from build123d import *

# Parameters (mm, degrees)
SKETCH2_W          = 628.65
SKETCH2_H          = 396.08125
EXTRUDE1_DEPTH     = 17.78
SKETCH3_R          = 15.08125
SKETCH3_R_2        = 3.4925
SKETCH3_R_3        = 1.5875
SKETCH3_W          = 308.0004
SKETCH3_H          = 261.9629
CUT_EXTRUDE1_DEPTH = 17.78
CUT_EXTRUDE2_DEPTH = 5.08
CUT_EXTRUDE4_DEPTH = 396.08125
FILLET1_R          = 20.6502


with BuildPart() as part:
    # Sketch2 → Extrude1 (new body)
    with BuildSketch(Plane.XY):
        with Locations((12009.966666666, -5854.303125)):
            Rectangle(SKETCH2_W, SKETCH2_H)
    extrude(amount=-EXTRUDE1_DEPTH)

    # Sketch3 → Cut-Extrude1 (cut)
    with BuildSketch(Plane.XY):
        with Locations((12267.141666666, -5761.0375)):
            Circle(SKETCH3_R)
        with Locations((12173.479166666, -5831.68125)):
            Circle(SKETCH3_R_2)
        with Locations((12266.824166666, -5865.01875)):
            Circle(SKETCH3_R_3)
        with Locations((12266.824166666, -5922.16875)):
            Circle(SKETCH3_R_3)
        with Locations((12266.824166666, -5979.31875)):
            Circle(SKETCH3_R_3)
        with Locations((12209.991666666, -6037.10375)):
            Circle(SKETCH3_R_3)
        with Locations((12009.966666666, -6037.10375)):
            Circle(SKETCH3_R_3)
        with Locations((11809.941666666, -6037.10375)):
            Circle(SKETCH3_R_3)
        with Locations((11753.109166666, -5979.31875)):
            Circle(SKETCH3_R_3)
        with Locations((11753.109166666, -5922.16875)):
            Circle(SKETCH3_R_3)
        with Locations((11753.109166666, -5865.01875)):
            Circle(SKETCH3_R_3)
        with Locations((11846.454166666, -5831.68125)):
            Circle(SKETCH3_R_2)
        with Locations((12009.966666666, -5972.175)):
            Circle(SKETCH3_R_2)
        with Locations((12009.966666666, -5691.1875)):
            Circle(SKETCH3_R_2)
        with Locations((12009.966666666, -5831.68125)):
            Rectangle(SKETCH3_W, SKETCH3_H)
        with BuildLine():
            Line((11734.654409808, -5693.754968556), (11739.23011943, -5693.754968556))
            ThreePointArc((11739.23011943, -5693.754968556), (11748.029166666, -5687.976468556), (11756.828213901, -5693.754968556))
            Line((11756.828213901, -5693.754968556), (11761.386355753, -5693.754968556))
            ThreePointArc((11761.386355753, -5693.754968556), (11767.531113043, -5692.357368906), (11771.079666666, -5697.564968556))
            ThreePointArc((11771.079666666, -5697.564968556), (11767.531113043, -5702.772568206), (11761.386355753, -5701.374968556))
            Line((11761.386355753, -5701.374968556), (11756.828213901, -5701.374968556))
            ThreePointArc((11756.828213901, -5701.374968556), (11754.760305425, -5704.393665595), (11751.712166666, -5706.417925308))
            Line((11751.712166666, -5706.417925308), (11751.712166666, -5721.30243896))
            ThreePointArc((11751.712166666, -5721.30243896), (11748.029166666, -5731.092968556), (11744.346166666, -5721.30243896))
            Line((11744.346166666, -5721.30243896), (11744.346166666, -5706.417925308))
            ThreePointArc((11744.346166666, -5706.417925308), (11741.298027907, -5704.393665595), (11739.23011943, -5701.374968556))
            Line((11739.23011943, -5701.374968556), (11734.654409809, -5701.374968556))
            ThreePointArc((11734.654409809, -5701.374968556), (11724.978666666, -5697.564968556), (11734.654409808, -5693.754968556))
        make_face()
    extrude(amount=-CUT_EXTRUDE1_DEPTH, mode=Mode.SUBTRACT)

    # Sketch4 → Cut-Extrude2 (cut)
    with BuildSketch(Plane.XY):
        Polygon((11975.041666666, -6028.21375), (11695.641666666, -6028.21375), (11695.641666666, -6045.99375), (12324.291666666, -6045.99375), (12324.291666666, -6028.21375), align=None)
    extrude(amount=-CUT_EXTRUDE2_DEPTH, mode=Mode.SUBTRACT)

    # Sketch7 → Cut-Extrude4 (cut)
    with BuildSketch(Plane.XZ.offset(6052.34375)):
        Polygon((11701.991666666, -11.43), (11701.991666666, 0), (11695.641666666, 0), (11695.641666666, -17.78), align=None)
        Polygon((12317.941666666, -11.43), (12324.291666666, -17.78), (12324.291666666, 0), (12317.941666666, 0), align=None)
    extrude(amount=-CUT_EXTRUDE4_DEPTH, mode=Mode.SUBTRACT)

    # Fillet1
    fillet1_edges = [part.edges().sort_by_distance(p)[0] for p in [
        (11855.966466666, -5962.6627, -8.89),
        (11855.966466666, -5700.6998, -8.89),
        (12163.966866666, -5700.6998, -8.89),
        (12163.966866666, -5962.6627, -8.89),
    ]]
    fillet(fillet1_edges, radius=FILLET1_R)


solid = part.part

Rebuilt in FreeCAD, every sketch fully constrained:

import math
import FreeCAD as App
import Part
import Sketcher

V = App.Vector
Q = App.Units.Quantity


def edges_at(feature, points):
    """Names of the edges that pass closest to the given points."""
    edges = feature.Shape.Edges
    near = lambda p: min(range(len(edges)), key=lambda i: edges[i].distToShape(Part.Vertex(*p))[0])
    return sorted({f"Edge{near(p) + 1}" for p in points})

doc = App.newDocument("Part")
body = doc.addObject("PartDesign::Body", "Body")

# Sketch on XY plane
sketch1 = body.newObject("Sketcher::SketchObject", "Sketch")
sketch1.AttachmentSupport = (doc.getObject("XY_Plane"), [""])
sketch1.MapMode = "FlatFace"
sketch1.addGeometry(Part.LineSegment(V(11696, -5656, 0), V(11696, -6052, 0)), False)
sketch1.addGeometry(Part.LineSegment(V(11696, -6052, 0), V(12324, -6052, 0)), False)
sketch1.addGeometry(Part.LineSegment(V(12324, -6052, 0), V(12324, -5656, 0)), False)
sketch1.addGeometry(Part.LineSegment(V(12324, -5656, 0), V(11696, -5656, 0)), False)
sketch1.addConstraint(Sketcher.Constraint("Coincident", 0, 2, 1, 1))
sketch1.addConstraint(Sketcher.Constraint("Coincident", 1, 2, 2, 1))
sketch1.addConstraint(Sketcher.Constraint("Coincident", 2, 2, 3, 1))
sketch1.addConstraint(Sketcher.Constraint("Coincident", 3, 2, 0, 1))
sketch1.addConstraint(Sketcher.Constraint("Vertical", 0))
sketch1.addConstraint(Sketcher.Constraint("Horizontal", 1))
sketch1.addConstraint(Sketcher.Constraint("Vertical", 2))
sketch1.addConstraint(Sketcher.Constraint("Horizontal", 3))
sketch1.addConstraint(Sketcher.Constraint("DistanceX", 1, 1, 1, 2, Q("24.75 in")))
sketch1.addConstraint(Sketcher.Constraint("DistanceY", 0, 2, 0, 1, Q("15.59375 in")))
sketch1.addConstraint(Sketcher.Constraint("DistanceY", 0, 2, -1, 1, Q("238.28125 in")))
sketch1.addConstraint(Sketcher.Constraint("DistanceX", -1, 1, 0, 2, 11695.641667))
pad1 = body.newObject("PartDesign::Pad", "Pad")
pad1.Profile = sketch1
pad1.Length = Q("0.7 in")
pad1.Reversed = True

# Sketch on XY plane
sketch2 = body.newObject("Sketcher::SketchObject", "Sketch001")
sketch2.AttachmentSupport = (doc.getObject("XY_Plane"), [""])
sketch2.MapMode = "FlatFace"
sketch2.addGeometry(Part.Circle(V(12267.1, -5761, 0), V(0, 0, 1), 15.1), False)
sketch2.addGeometry(Part.Circle(V(12173.5, -5831.7, 0), V(0, 0, 1), 3.5), False)
sketch2.addGeometry(Part.Circle(V(12266.8, -5865, 0), V(0, 0, 1), 1.6), False)
sketch2.addGeometry(Part.Circle(V(12266.8, -5922.2, 0), V(0, 0, 1), 1.6), False)
sketch2.addGeometry(Part.Circle(V(12266.8, -5979.3, 0), V(0, 0, 1), 1.6), False)
sketch2.addGeometry(Part.Circle(V(12210, -6037.1, 0), V(0, 0, 1), 1.6), False)
sketch2.addGeometry(Part.Circle(V(12010, -6037.1, 0), V(0, 0, 1), 1.6), False)
sketch2.addGeometry(Part.Circle(V(11809.9, -6037.1, 0), V(0, 0, 1), 1.6), False)
sketch2.addGeometry(Part.Circle(V(11753.1, -5979.3, 0), V(0, 0, 1), 1.6), False)
sketch2.addGeometry(Part.Circle(V(11753.1, -5922.2, 0), V(0, 0, 1), 1.6), False)
sketch2.addGeometry(Part.Circle(V(11753.1, -5865, 0), V(0, 0, 1), 1.6), False)
sketch2.addGeometry(Part.Circle(V(11846.5, -5831.7, 0), V(0, 0, 1), 3.5), False)
sketch2.addGeometry(Part.Circle(V(12010, -5972.2, 0), V(0, 0, 1), 3.5), False)
sketch2.addGeometry(Part.Circle(V(12010, -5691.2, 0), V(0, 0, 1), 3.5), False)
sketch2.addGeometry(Part.LineSegment(V(11856, -5700.7, 0), V(11856, -5962.7, 0)), False)
sketch2.addGeometry(Part.LineSegment(V(11856, -5962.7, 0), V(12164, -5962.7, 0)), False)
sketch2.addGeometry(Part.LineSegment(V(12164, -5962.7, 0), V(12164, -5700.7, 0)), False)
sketch2.addGeometry(Part.LineSegment(V(12164, -5700.7, 0), V(11856, -5700.7, 0)), False)
sketch2.addGeometry(Part.LineSegment(V(11739.2, -5693.8, 0), V(11734.7, -5693.8, 0)), False)
sketch2.addGeometry(Part.ArcOfCircle(Part.Circle(V(11730.6, -5697.6, 0), V(0, 0, 1), 5.6), math.radians(43), math.radians(317)), False)
sketch2.addGeometry(Part.LineSegment(V(11734.7, -5701.4, 0), V(11739.2, -5701.4, 0)), False)
sketch2.addGeometry(Part.ArcOfCircle(Part.Circle(V(11748, -5697.6, 0), V(0, 0, 1), 9.6), math.radians(-157), math.radians(-113)), False)
sketch2.addGeometry(Part.LineSegment(V(11744.3, -5706.4, 0), V(11744.3, -5721.3, 0)), False)
sketch2.addGeometry(Part.ArcOfCircle(Part.Circle(V(11748, -5725.5, 0), V(0, 0, 1), 5.6), math.radians(131), math.radians(409)), False)
sketch2.addGeometry(Part.LineSegment(V(11751.7, -5721.3, 0), V(11751.7, -5706.4, 0)), False)
sketch2.addGeometry(Part.ArcOfCircle(Part.Circle(V(11748, -5697.6, 0), V(0, 0, 1), 9.6), math.radians(-67), math.radians(-23)), False)
sketch2.addGeometry(Part.LineSegment(V(11756.8, -5701.4, 0), V(11761.4, -5701.4, 0)), False)
sketch2.addGeometry(Part.ArcOfCircle(Part.Circle(V(11765.5, -5697.6, 0), V(0, 0, 1), 5.6), math.radians(-137), math.radians(0)), False)
sketch2.addGeometry(Part.ArcOfCircle(Part.Circle(V(11765.5, -5697.6, 0), V(0, 0, 1), 5.6), math.radians(0), math.radians(137)), False)
sketch2.addGeometry(Part.LineSegment(V(11761.4, -5693.8, 0), V(11756.8, -5693.8, 0)), False)
sketch2.addGeometry(Part.ArcOfCircle(Part.Circle(V(11748, -5697.6, 0), V(0, 0, 1), 9.6), math.radians(23), math.radians(157)), False)
sketch2.addConstraint(Sketcher.Constraint("Coincident", 14, 2, 15, 1))
sketch2.addConstraint(Sketcher.Constraint("Coincident", 15, 2, 16, 1))
sketch2.addConstraint(Sketcher.Constraint("Coincident", 16, 2, 17, 1))
sketch2.addConstraint(Sketcher.Constraint("Coincident", 17, 2, 14, 1))
sketch2.addConstraint(Sketcher.Constraint("Coincident", 18, 2, 19, 1))
sketch2.addConstraint(Sketcher.Constraint("Coincident", 19, 2, 20, 1))
sketch2.addConstraint(Sketcher.Constraint("Coincident", 20, 2, 21, 1))
sketch2.addConstraint(Sketcher.Constraint("Coincident", 21, 2, 22, 1))
sketch2.addConstraint(Sketcher.Constraint("Coincident", 22, 2, 23, 1))
sketch2.addConstraint(Sketcher.Constraint("Coincident", 23, 2, 24, 1))
sketch2.addConstraint(Sketcher.Constraint("Coincident", 24, 2, 25, 1))
sketch2.addConstraint(Sketcher.Constraint("Coincident", 25, 2, 26, 1))
sketch2.addConstraint(Sketcher.Constraint("Coincident", 26, 2, 27, 1))
sketch2.addConstraint(Sketcher.Constraint("Tangent", 27, 2, 28, 1))
sketch2.addConstraint(Sketcher.Constraint("Coincident", 28, 2, 29, 1))
sketch2.addConstraint(Sketcher.Constraint("Coincident", 29, 2, 30, 1))
sketch2.addConstraint(Sketcher.Constraint("Coincident", 30, 2, 18, 1))
sketch2.addConstraint(Sketcher.Constraint("Vertical", 14))
sketch2.addConstraint(Sketcher.Constraint("Horizontal", 15))
sketch2.addConstraint(Sketcher.Constraint("Vertical", 16))
sketch2.addConstraint(Sketcher.Constraint("Horizontal", 17))
sketch2.addConstraint(Sketcher.Constraint("Horizontal", 18))
sketch2.addConstraint(Sketcher.Constraint("Horizontal", 20))
sketch2.addConstraint(Sketcher.Constraint("Vertical", 22))
sketch2.addConstraint(Sketcher.Constraint("Vertical", 24))
sketch2.addConstraint(Sketcher.Constraint("Horizontal", 26))
sketch2.addConstraint(Sketcher.Constraint("Horizontal", 29))
sketch2.addConstraint(Sketcher.Constraint("Coincident", 25, 3, 21, 3))
sketch2.addConstraint(Sketcher.Constraint("Coincident", 30, 3, 21, 3))
sketch2.addConstraint(Sketcher.Constraint("Equal", 2, 3))
sketch2.addConstraint(Sketcher.Constraint("Equal", 3, 4))
sketch2.addConstraint(Sketcher.Constraint("Equal", 4, 5))
sketch2.addConstraint(Sketcher.Constraint("Equal", 5, 6))
sketch2.addConstraint(Sketcher.Constraint("Equal", 6, 7))
sketch2.addConstraint(Sketcher.Constraint("Equal", 7, 8))
sketch2.addConstraint(Sketcher.Constraint("Equal", 8, 9))
sketch2.addConstraint(Sketcher.Constraint("Equal", 9, 10))
sketch2.addConstraint(Sketcher.Constraint("Equal", 1, 11))
sketch2.addConstraint(Sketcher.Constraint("Equal", 11, 12))
sketch2.addConstraint(Sketcher.Constraint("Equal", 12, 13))
sketch2.addConstraint(Sketcher.Constraint("Equal", 19, 23))
sketch2.addConstraint(Sketcher.Constraint("Equal", 21, 25))
sketch2.addConstraint(Sketcher.Constraint("Equal", 27, 28))
sketch2.addConstraint(Sketcher.Constraint("Equal", 25, 30))
sketch2.addConstraint(Sketcher.Constraint("Horizontal", 5, 3, 6, 3))
sketch2.addConstraint(Sketcher.Constraint("Horizontal", 6, 3, 7, 3))
sketch2.addConstraint(Sketcher.Constraint("Horizontal", 4, 3, 8, 3))
sketch2.addConstraint(Sketcher.Constraint("Horizontal", 3, 3, 9, 3))
sketch2.addConstraint(Sketcher.Constraint("Horizontal", 2, 3, 10, 3))
sketch2.addConstraint(Sketcher.Constraint("Horizontal", 1, 3, 11, 3))
sketch2.addConstraint(Sketcher.Constraint("Horizontal", 19, 3, 21, 3))
sketch2.addConstraint(Sketcher.Constraint("Horizontal", 25, 3, 27, 3))
sketch2.addConstraint(Sketcher.Constraint("Horizontal", 22, 2, 23, 2))
sketch2.addConstraint(Sketcher.Constraint("Horizontal", 21, 2, 24, 2))
sketch2.addConstraint(Sketcher.Constraint("Horizontal", 20, 2, 25, 2))
sketch2.addConstraint(Sketcher.Constraint("Horizontal", 30, 3, 27, 2))
sketch2.addConstraint(Sketcher.Constraint("Horizontal", 18, 2, 28, 2))
sketch2.addConstraint(Sketcher.Constraint("Vertical", 2, 3, 3, 3))
sketch2.addConstraint(Sketcher.Constraint("Vertical", 3, 3, 4, 3))
sketch2.addConstraint(Sketcher.Constraint("Vertical", 8, 3, 9, 3))
sketch2.addConstraint(Sketcher.Constraint("Vertical", 9, 3, 10, 3))
sketch2.addConstraint(Sketcher.Constraint("Vertical", 6, 3, 12, 3))
sketch2.addConstraint(Sketcher.Constraint("Vertical", 12, 3, 13, 3))
sketch2.addConstraint(Sketcher.Constraint("Vertical", 18, 2, 19, 2))
sketch2.addConstraint(Sketcher.Constraint("Radius", 19, Q("0.22 in")))
sketch2.addConstraint(Sketcher.Constraint("Diameter", 0, Q("1.1875 in")))
sketch2.addConstraint(Sketcher.Constraint("Diameter", 1, Q("0.275 in")))
sketch2.addConstraint(Sketcher.Constraint("Diameter", 2, Q("0.125 in")))
sketch2.addConstraint(Sketcher.Constraint("DistanceX", 19, 3, 13, 3, Q("11 in")))
sketch2.addConstraint(Sketcher.Constraint("Radius", 21, Q("0.3775 in")))
sketch2.addConstraint(Sketcher.Constraint("DistanceY", 4, 3, 2, 3, Q("4.5 in")))
sketch2.addConstraint(Sketcher.Constraint("DistanceX", 21, 3, 10, 3, Q("0.2 in")))
sketch2.addConstraint(Sketcher.Constraint("DistanceY", 23, 3, 21, 3, Q("1.1 in")))
sketch2.addConstraint(Sketcher.Constraint("DistanceY", 19, 2, 18, 2, Q("0.3 in")))
sketch2.addConstraint(Sketcher.Constraint("DistanceX", 15, 1, 15, 2, Q("12.126 in")))
sketch2.addConstraint(Sketcher.Constraint("DistanceY", 3, 3, 2, 3, Q("2.25 in")))
sketch2.addConstraint(Sketcher.Constraint("DistanceX", 5, 3, 0, 3, Q("2.25 in")))
sketch2.addConstraint(Sketcher.Constraint("DistanceX", 7, 3, 5, 3, Q("15.75 in")))
sketch2.addConstraint(Sketcher.Constraint("DistanceX", 8, 3, 1, 3, Q("16.55 in")))
sketch2.addConstraint(Sketcher.Constraint("DistanceY", 0, 3, 13, 3, Q("2.75 in")))
sketch2.addConstraint(Sketcher.Constraint("DistanceX", 22, 2, 23, 2, Q("0.29 in")))
sketch2.addConstraint(Sketcher.Constraint("DistanceY", 14, 2, 14, 1, Q("10.3135 in")))
sketch2.addConstraint(Sketcher.Constraint("DistanceY", 0, 3, -1, 1, Q("226.8125 in")))
sketch2.addConstraint(Sketcher.Constraint("DistanceY", 1, 3, -1, 1, Q("229.59375 in")))
sketch2.addConstraint(Sketcher.Constraint("DistanceY", 2, 3, -1, 1, Q("230.90625 in")))
sketch2.addConstraint(Sketcher.Constraint("DistanceY", 12, 3, -1, 1, Q("235.125 in")))
sketch2.addConstraint(Sketcher.Constraint("DistanceY", 16, 2, -1, 1, Q("224.437 in")))
sketch2.addConstraint(Sketcher.Constraint("DistanceX", 1, 3, 0, 3, Q("3.6875 in")))
sketch2.addConstraint(Sketcher.Constraint("DistanceX", 1, 3, 2, 3, Q("3.675 in")))
sketch2.addConstraint(Sketcher.Constraint("DistanceY", 5, 3, 4, 3, Q("2.275 in")))
sketch2.addConstraint(Sketcher.Constraint("DistanceX", 6, 3, 5, 3, Q("7.875 in")))
sketch2.addConstraint(Sketcher.Constraint("DistanceX", 10, 3, 11, 3, Q("3.675 in")))
sketch2.addConstraint(Sketcher.Constraint("DistanceX", 7, 3, 14, 2, Q("1.812 in")))
sketch2.addConstraint(Sketcher.Constraint("Radius", 27, 5.595424))
sketch2.addConstraint(Sketcher.Constraint("DistanceX", 24, 2, 27, 2, Q("0.7625 in")))
sketch2.addConstraint(Sketcher.Constraint("DistanceY", 19, 3, -1, 1, 5697.564969))
sketch2.addConstraint(Sketcher.Constraint("DistanceX", -1, 1, 18, 2, 11734.65441))
pocket1 = body.newObject("PartDesign::Pocket", "Pocket")
pocket1.Profile = sketch2
pocket1.Length = Q("0.7 in")

# Sketch on XY plane
sketch3 = body.newObject("Sketcher::SketchObject", "Sketch002")
sketch3.AttachmentSupport = (doc.getObject("XY_Plane"), [""])
sketch3.MapMode = "FlatFace"
sketch3.addGeometry(Part.LineSegment(V(11695.641667, -6028.21375, 0), V(11695.641667, -6045.99375, 0)), False)
sketch3.addGeometry(Part.LineSegment(V(11695.641667, -6045.99375, 0), V(12324.291667, -6045.99375, 0)), False)
sketch3.addGeometry(Part.LineSegment(V(12324.291667, -6045.99375, 0), V(12324.291667, -6028.21375, 0)), False)
sketch3.addGeometry(Part.LineSegment(V(12324.291667, -6028.21375, 0), V(11695.641667, -6028.21375, 0)), False)
sketch3.addConstraint(Sketcher.Constraint("Coincident", 0, 2, 1, 1))
sketch3.addConstraint(Sketcher.Constraint("Coincident", 1, 2, 2, 1))
sketch3.addConstraint(Sketcher.Constraint("Coincident", 2, 2, 3, 1))
sketch3.addConstraint(Sketcher.Constraint("Coincident", 3, 2, 0, 1))
sketch3.addConstraint(Sketcher.Constraint("Vertical", 0))
sketch3.addConstraint(Sketcher.Constraint("Horizontal", 1))
sketch3.addConstraint(Sketcher.Constraint("Vertical", 2))
sketch3.addConstraint(Sketcher.Constraint("Horizontal", 3))
sketch3.addConstraint(Sketcher.Constraint("DistanceY", 0, 2, 0, 1, Q("0.7 in")))
sketch3.addConstraint(Sketcher.Constraint("DistanceX", 1, 1, 1, 2, Q("24.75 in")))
sketch3.addConstraint(Sketcher.Constraint("DistanceY", 0, 2, -1, 1, Q("238.03125 in")))
sketch3.addConstraint(Sketcher.Constraint("DistanceX", -1, 1, 0, 2, 11695.641667))
pocket2 = body.newObject("PartDesign::Pocket", "Pocket001")
pocket2.Profile = sketch3
pocket2.Length = Q("0.2 in")

# Sketch on XZ plane
sketch4 = body.newObject("Sketcher::SketchObject", "Sketch003")
sketch4.AttachmentSupport = (doc.getObject("XZ_Plane"), [""])
sketch4.MapMode = "FlatFace"
sketch4.AttachmentOffset = App.Placement(V(0, 0, 238.28125 * 25.4), App.Rotation())
sketch4.addGeometry(Part.LineSegment(V(11702, -11, 0), V(11702, 0, 0)), False)
sketch4.addGeometry(Part.LineSegment(V(11702, 0, 0), V(11696, 0, 0)), False)
sketch4.addGeometry(Part.LineSegment(V(11696, 0, 0), V(11696, -18, 0)), False)
sketch4.addGeometry(Part.LineSegment(V(11696, -18, 0), V(11702, -11, 0)), False)
sketch4.addGeometry(Part.LineSegment(V(12318, -11, 0), V(12324, -18, 0)), False)
sketch4.addGeometry(Part.LineSegment(V(12324, -18, 0), V(12324, 0, 0)), False)
sketch4.addGeometry(Part.LineSegment(V(12324, 0, 0), V(12318, 0, 0)), False)
sketch4.addGeometry(Part.LineSegment(V(12318, 0, 0), V(12318, -11, 0)), False)
sketch4.addConstraint(Sketcher.Constraint("Coincident", 0, 2, 1, 1))
sketch4.addConstraint(Sketcher.Constraint("Coincident", 1, 2, 2, 1))
sketch4.addConstraint(Sketcher.Constraint("Coincident", 2, 2, 3, 1))
sketch4.addConstraint(Sketcher.Constraint("Coincident", 3, 2, 0, 1))
sketch4.addConstraint(Sketcher.Constraint("Coincident", 4, 2, 5, 1))
sketch4.addConstraint(Sketcher.Constraint("Coincident", 5, 2, 6, 1))
sketch4.addConstraint(Sketcher.Constraint("Coincident", 6, 2, 7, 1))
sketch4.addConstraint(Sketcher.Constraint("Coincident", 7, 2, 4, 1))
sketch4.addConstraint(Sketcher.Constraint("Vertical", 0))
sketch4.addConstraint(Sketcher.Constraint("Horizontal", 1))
sketch4.addConstraint(Sketcher.Constraint("Vertical", 2))
sketch4.addConstraint(Sketcher.Constraint("Vertical", 5))
sketch4.addConstraint(Sketcher.Constraint("Horizontal", 6))
sketch4.addConstraint(Sketcher.Constraint("Vertical", 7))
sketch4.addConstraint(Sketcher.Constraint("PointOnObject", 0, 2, -1))
sketch4.addConstraint(Sketcher.Constraint("PointOnObject", 5, 2, -1))
sketch4.addConstraint(Sketcher.Constraint("Perpendicular", 3, 4))
sketch4.addConstraint(Sketcher.Constraint("Horizontal", 2, 2, 4, 2))
sketch4.addConstraint(Sketcher.Constraint("Horizontal", 3, 2, 7, 2))
sketch4.addConstraint(Sketcher.Constraint("Equal", 1, 6))
sketch4.addConstraint(Sketcher.Constraint("DistanceY", 2, 2, 2, 1, Q("0.7 in")))
sketch4.addConstraint(Sketcher.Constraint("DistanceX", 1, 2, 1, 1, Q("0.25 in")))
sketch4.addConstraint(Sketcher.Constraint("DistanceX", 3, 2, 4, 2, Q("24.5 in")))
sketch4.addConstraint(Sketcher.Constraint("DistanceX", -1, 1, 0, 2, 11701.991667))
pocket3 = body.newObject("PartDesign::Pocket", "Pocket002")
pocket3.Profile = sketch4
pocket3.Length = Q("15.59375 in")
doc.recompute()

fillet = body.newObject("PartDesign::Fillet", "Fillet")
fillet.Base = (pocket3, edges_at(pocket3, [
    (11855.966, -5962.663, -8.89),
    (11855.966, -5700.7, -8.89),
    (12163.967, -5700.7, -8.89),
    (12163.967, -5962.663, -8.89),
]))
fillet.Radius = Q("0.813 in")

doc.recompute()
